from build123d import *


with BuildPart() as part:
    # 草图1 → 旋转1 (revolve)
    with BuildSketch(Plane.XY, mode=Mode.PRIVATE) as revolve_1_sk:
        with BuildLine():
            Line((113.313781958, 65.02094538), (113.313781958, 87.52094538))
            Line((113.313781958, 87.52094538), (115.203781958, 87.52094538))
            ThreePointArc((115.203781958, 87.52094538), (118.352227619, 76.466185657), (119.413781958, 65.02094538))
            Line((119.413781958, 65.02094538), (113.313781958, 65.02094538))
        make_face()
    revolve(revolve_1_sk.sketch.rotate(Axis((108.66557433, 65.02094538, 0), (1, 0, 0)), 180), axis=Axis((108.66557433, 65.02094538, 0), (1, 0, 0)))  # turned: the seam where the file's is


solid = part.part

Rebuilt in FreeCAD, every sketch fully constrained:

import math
import FreeCAD as App
import Part
import Sketcher
from FreeCAD import Vector

doc = App.newDocument("Part")
params = doc.addObject("Spreadsheet::Sheet", "Params")
for row, (alias, value) in enumerate([
    ("sketch1_width", "6.1 mm"),
    ("sketch1_height", "22.5 mm"),
    ("sketch1_width2", "1.89 mm"),
    ("revolution_angle", "360 deg"),
], start=1):
    params.set(f"A{row}", alias)
    params.set(f"B{row}", "=" + value)
    params.setAlias(f"B{row}", alias)

body = doc.addObject("PartDesign::Body", "Body")

sketch1 = doc.addObject("Sketcher::SketchObject", "Sketch")
body.addObject(sketch1)
sketch1.AttachmentSupport = (doc.XY_Plane, [""])
sketch1.MapMode = "FlatFace"
sketch1.addGeometry([
    Part.LineSegment(Vector(113.3, 87.5, 0), Vector(113.3, 65, 0)),
    Part.LineSegment(Vector(113.3, 65, 0), Vector(119.4, 65, 0)),
    Part.ArcOfCircle(Part.Circle(Vector(57.2, 65, 0), Vector(0, 0, 1), 62.2), math.radians(0), math.radians(21)),
    Part.LineSegment(Vector(115.2, 87.5, 0), Vector(113.3, 87.5, 0)),
], False)
sketch1.addGeometry(Part.LineSegment(Vector(57.2, 65, 0), Vector(119.4, 65, 0)), True)
sketch1.addConstraint([
    Sketcher.Constraint("Coincident", 0, 2, 1, 1),
    Sketcher.Constraint("Coincident", 1, 2, 2, 1),
    Sketcher.Constraint("Coincident", 2, 2, 3, 1),
    Sketcher.Constraint("Coincident", 3, 2, 0, 1),
    Sketcher.Constraint("Vertical", 0),
    Sketcher.Constraint("Horizontal", 1),
    Sketcher.Constraint("Horizontal", 3),
    Sketcher.Constraint("Horizontal", 4),
    Sketcher.Constraint("Coincident", 4, 1, 2, 3),
    Sketcher.Constraint("Coincident", 4, 2, 1, 2),
    Sketcher.Constraint("DistanceX", 1, 1, 1, 2, 6.1),
    Sketcher.Constraint("DistanceY", 0, 2, 0, 1, 22.5),
    Sketcher.Constraint("DistanceX", 3, 2, 3, 1, 1.89),
    Sketcher.Constraint("DistanceX", -1, 1, 2, 3, 57.184079),
    Sketcher.Constraint("DistanceY", -1, 1, 2, 3, 65.020945),
])
sketch1.setExpression("Constraints[10]", "Params.sketch1_width")
sketch1.setExpression("Constraints[11]", "Params.sketch1_height")
sketch1.setExpression("Constraints[12]", "Params.sketch1_width2")
revolution = doc.addObject("PartDesign::Revolution", "Revolution")
body.addObject(revolution)
revolution.Profile = sketch1
revolution.ReferenceAxis = (sketch1, ["Axis0"])
revolution.setExpression("Angle", "Params.revolution_angle")

doc.recompute()
